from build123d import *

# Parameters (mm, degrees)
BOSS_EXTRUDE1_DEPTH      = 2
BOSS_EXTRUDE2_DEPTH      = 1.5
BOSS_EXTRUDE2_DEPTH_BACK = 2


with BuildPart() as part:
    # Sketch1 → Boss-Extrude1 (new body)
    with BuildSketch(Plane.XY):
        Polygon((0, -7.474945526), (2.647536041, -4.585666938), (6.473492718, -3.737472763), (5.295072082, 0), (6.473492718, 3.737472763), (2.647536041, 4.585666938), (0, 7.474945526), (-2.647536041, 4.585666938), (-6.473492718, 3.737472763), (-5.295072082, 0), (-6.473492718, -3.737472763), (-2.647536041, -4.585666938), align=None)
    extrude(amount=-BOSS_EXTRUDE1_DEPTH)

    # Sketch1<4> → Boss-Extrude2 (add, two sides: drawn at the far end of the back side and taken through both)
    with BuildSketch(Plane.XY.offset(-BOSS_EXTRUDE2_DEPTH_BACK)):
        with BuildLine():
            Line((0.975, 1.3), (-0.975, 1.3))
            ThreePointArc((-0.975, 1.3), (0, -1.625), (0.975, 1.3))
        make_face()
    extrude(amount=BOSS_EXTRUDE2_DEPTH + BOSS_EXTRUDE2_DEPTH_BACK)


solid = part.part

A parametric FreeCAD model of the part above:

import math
import FreeCAD as App
import Part
import Sketcher
from FreeCAD import Vector
Q = App.Units.Quantity

doc = App.newDocument("Part")
body = doc.addObject("PartDesign::Body", "Body")

# Sketch on XY plane
sketch1 = doc.addObject("Sketcher::SketchObject", "Sketch")
body.addObject(sketch1)
sketch1.AttachmentSupport = (doc.XY_Plane, [""])
sketch1.MapMode = "FlatFace"
sketch1.addGeometry([
    Part.LineSegment(Vector(0, -7.5, 0), Vector(2.6, -4.6, 0)),  # 0
    Part.LineSegment(Vector(2.6, -4.6, 0), Vector(6.5, -3.7, 0)),  # 1
    Part.LineSegment(Vector(6.5, -3.7, 0), Vector(5.3, 0, 0)),  # 2
    Part.LineSegment(Vector(5.3, 0, 0), Vector(6.5, 3.7, 0)),  # 3
    Part.LineSegment(Vector(6.5, 3.7, 0), Vector(2.6, 4.6, 0)),  # 4
    Part.LineSegment(Vector(2.6, 4.6, 0), Vector(0, 7.5, 0)),  # 5
    Part.LineSegment(Vector(0, 7.5, 0), Vector(-2.6, 4.6, 0)),  # 6
    Part.LineSegment(Vector(-2.6, 4.6, 0), Vector(-6.5, 3.7, 0)),  # 7
    Part.LineSegment(Vector(-6.5, 3.7, 0), Vector(-5.3, 0, 0)),  # 8
    Part.LineSegment(Vector(-5.3, 0, 0), Vector(-6.5, -3.7, 0)),  # 9
    Part.LineSegment(Vector(-6.5, -3.7, 0), Vector(-2.6, -4.6, 0)),  # 10
    Part.LineSegment(Vector(-2.6, -4.6, 0), Vector(0, -7.5, 0)),  # 11
], False)
sketch1.addConstraint([
    Sketcher.Constraint("Coincident", 0, 2, 1, 1),
    Sketcher.Constraint("Coincident", 1, 2, 2, 1),
    Sketcher.Constraint("Coincident", 2, 2, 3, 1),
    Sketcher.Constraint("Coincident", 3, 2, 4, 1),
    Sketcher.Constraint("Coincident", 4, 2, 5, 1),
    Sketcher.Constraint("Coincident", 5, 2, 6, 1),
    Sketcher.Constraint("Coincident", 6, 2, 7, 1),
    Sketcher.Constraint("Coincident", 7, 2, 8, 1),
    Sketcher.Constraint("Coincident", 8, 2, 9, 1),
    Sketcher.Constraint("Coincident", 9, 2, 10, 1),
    Sketcher.Constraint("Coincident", 10, 2, 11, 1),
    Sketcher.Constraint("Coincident", 11, 2, 0, 1),
    Sketcher.Constraint("Symmetric", 0, 2, 6, 2, -1, 1),
    Sketcher.Constraint("Symmetric", 1, 2, 7, 2, -1, 1),
    Sketcher.Constraint("Symmetric", 2, 2, 8, 2, -1, 1),
    Sketcher.Constraint("Symmetric", 3, 2, 9, 2, -1, 1),
    Sketcher.Constraint("Symmetric", 4, 2, 10, 2, -1, 1),
    Sketcher.Constraint("Symmetric", 5, 2, 11, 2, -1, 1),
    Sketcher.Constraint("Symmetric", 4, 2, 6, 2, -2),
    Sketcher.Constraint("Symmetric", 3, 2, 7, 2, -2),
    Sketcher.Constraint("PointOnObject", 2, 2, -1),
    Sketcher.Constraint("PointOnObject", 5, 2, -2),
    Sketcher.Constraint("Equal", 0, 1),
    Sketcher.Constraint("Equal", 1, 2),
    Sketcher.Constraint("Angle", 0, Q("47.5 deg")),
    Sketcher.Constraint("Angle", 1, Q("12.5 deg")),
    Sketcher.Constraint("Angle", 2, Q("107.5 deg")),
    Sketcher.Constraint("Distance", 0, 3.918849),
])
pad1 = doc.addObject("PartDesign::Pad", "Pad")
body.addObject(pad1)
pad1.Profile = sketch1
pad1.Length = 2
pad1.Reversed = True

# Sketch on XY plane
sketch2 = doc.addObject("Sketcher::SketchObject", "Sketch001")
body.addObject(sketch2)
sketch2.AttachmentSupport = (doc.XY_Plane, [""])
sketch2.MapMode = "FlatFace"
sketch2.addGeometry([
    Part.LineSegment(Vector(1, 1.3, 0), Vector(-1, 1.3, 0)),
    Part.ArcOfCircle(Part.Circle(Vector(0, 0, 0), Vector(0, 0, 1), 1.6), math.radians(127), math.radians(413)),
], False)
sketch2.addConstraint([
    Sketcher.Constraint("Coincident", 0, 1, 1, 2),
    Sketcher.Constraint("Coincident", 1, 1, 0, 2),
    Sketcher.Constraint("Horizontal", 0),
    Sketcher.Constraint("Coincident", 1, 3, -1, 1),
    Sketcher.Constraint("Radius", 1, 1.625),
    Sketcher.Constraint("DistanceX", 0, 2, 0, 1, 1.95),
])
pad2 = doc.addObject("PartDesign::Pad", "Pad001")
body.addObject(pad2)
pad2.Profile = sketch2
pad2.Type = "TwoLengths"
pad2.Length = 1.5
pad2.Length2 = 2

doc.recompute()
